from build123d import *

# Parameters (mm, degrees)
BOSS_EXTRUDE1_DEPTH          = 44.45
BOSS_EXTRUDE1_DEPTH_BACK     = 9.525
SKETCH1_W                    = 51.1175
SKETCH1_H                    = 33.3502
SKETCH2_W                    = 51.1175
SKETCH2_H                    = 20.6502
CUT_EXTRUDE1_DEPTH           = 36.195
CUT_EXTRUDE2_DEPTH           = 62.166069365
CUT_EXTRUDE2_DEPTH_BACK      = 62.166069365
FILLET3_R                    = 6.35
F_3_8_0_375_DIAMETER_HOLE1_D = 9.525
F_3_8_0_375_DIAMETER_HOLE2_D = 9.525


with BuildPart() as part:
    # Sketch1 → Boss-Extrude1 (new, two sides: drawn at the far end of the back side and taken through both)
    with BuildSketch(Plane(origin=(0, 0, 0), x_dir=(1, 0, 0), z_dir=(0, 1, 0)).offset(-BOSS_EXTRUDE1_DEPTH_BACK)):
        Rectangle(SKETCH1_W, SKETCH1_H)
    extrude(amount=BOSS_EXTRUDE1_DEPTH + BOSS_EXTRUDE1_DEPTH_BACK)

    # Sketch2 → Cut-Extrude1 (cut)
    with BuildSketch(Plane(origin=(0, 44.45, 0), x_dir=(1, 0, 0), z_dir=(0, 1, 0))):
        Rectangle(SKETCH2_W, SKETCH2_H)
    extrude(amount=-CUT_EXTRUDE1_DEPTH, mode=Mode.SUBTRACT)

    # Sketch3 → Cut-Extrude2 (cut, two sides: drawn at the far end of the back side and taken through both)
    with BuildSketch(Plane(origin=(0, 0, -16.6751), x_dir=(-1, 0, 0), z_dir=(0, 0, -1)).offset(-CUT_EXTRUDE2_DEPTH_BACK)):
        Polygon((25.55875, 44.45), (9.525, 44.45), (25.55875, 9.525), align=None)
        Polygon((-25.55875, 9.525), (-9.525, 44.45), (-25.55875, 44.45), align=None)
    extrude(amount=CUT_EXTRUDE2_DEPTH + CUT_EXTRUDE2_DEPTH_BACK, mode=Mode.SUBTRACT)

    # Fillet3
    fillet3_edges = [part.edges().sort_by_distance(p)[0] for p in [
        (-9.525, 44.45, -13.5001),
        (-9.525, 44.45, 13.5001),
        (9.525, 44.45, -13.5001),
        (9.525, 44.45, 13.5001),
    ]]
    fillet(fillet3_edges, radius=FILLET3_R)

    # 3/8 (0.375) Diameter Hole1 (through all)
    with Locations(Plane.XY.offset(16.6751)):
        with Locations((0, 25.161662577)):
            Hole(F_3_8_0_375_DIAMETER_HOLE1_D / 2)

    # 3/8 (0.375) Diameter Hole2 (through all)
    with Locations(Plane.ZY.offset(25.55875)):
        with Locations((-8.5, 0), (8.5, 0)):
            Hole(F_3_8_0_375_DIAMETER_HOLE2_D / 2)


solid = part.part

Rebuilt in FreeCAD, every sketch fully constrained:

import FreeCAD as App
import Part
import Sketcher

V = App.Vector
Q = App.Units.Quantity


def edges_at(feature, points):
    """Names of the edges that pass closest to the given points."""
    edges = feature.Shape.Edges
    near = lambda p: min(range(len(edges)), key=lambda i: edges[i].distToShape(Part.Vertex(*p))[0])
    return sorted({f"Edge{near(p) + 1}" for p in points})

doc = App.newDocument("Part")
body = doc.addObject("PartDesign::Body", "Body")

# Sketch on XZ plane
sketch1 = body.newObject("Sketcher::SketchObject", "Sketch")
sketch1.AttachmentSupport = (doc.getObject("XZ_Plane"), [""])
sketch1.MapMode = "FlatFace"
sketch1.addGeometry(Part.LineSegment(V(-25.55875, -16.6751, 0), V(-25.55875, 16.6751, 0)), False)
sketch1.addGeometry(Part.LineSegment(V(-25.55875, 16.6751, 0), V(25.55875, 16.6751, 0)), False)
sketch1.addGeometry(Part.LineSegment(V(25.55875, 16.6751, 0), V(25.55875, -16.6751, 0)), False)
sketch1.addGeometry(Part.LineSegment(V(25.55875, -16.6751, 0), V(-25.55875, -16.6751, 0)), False)
sketch1.addConstraint(Sketcher.Constraint("Coincident", 0, 2, 1, 1))
sketch1.addConstraint(Sketcher.Constraint("Coincident", 1, 2, 2, 1))
sketch1.addConstraint(Sketcher.Constraint("Coincident", 2, 2, 3, 1))
sketch1.addConstraint(Sketcher.Constraint("Coincident", 3, 2, 0, 1))
sketch1.addConstraint(Sketcher.Constraint("Vertical", 0))
sketch1.addConstraint(Sketcher.Constraint("Horizontal", 1))
sketch1.addConstraint(Sketcher.Constraint("Vertical", 2))
sketch1.addConstraint(Sketcher.Constraint("Horizontal", 3))
sketch1.addConstraint(Sketcher.Constraint("Symmetric", 0, 2, 2, 2, -1, 1))
sketch1.addConstraint(Sketcher.Constraint("DistanceY", 0, 1, 0, 2, Q("1.313 in")))
sketch1.addConstraint(Sketcher.Constraint("DistanceX", 1, 1, 1, 2, Q("2.0125 in")))
pad1 = body.newObject("PartDesign::Pad", "Pad")
pad1.Profile = sketch1
pad1.Type = "TwoLengths"
pad1.Length = Q("1.75 in")
pad1.Length2 = Q("0.375 in")
pad1.Reversed = True

# Sketch on XZ plane
sketch2 = body.newObject("Sketcher::SketchObject", "Sketch001")
sketch2.AttachmentSupport = (doc.getObject("XZ_Plane"), [""])
sketch2.MapMode = "FlatFace"
sketch2.AttachmentOffset = App.Placement(V(0, 0, -1.75 * 25.4), App.Rotation())
sketch2.addGeometry(Part.LineSegment(V(-25.55875, -10.3251, 0), V(-25.55875, 10.3251, 0)), False)
sketch2.addGeometry(Part.LineSegment(V(-25.55875, 10.3251, 0), V(25.55875, 10.3251, 0)), False)
sketch2.addGeometry(Part.LineSegment(V(25.55875, 10.3251, 0), V(25.55875, -10.3251, 0)), False)
sketch2.addGeometry(Part.LineSegment(V(25.55875, -10.3251, 0), V(-25.55875, -10.3251, 0)), False)
sketch2.addConstraint(Sketcher.Constraint("Coincident", 0, 2, 1, 1))
sketch2.addConstraint(Sketcher.Constraint("Coincident", 1, 2, 2, 1))
sketch2.addConstraint(Sketcher.Constraint("Coincident", 2, 2, 3, 1))
sketch2.addConstraint(Sketcher.Constraint("Coincident", 3, 2, 0, 1))
sketch2.addConstraint(Sketcher.Constraint("Vertical", 0))
sketch2.addConstraint(Sketcher.Constraint("Horizontal", 1))
sketch2.addConstraint(Sketcher.Constraint("Vertical", 2))
sketch2.addConstraint(Sketcher.Constraint("Horizontal", 3))
sketch2.addConstraint(Sketcher.Constraint("Symmetric", 0, 2, 2, 2, -1, 1))
sketch2.addConstraint(Sketcher.Constraint("DistanceY", 0, 1, 0, 2, Q("0.813 in")))
sketch2.addConstraint(Sketcher.Constraint("DistanceX", 1, 1, 1, 2, Q("2.0125 in")))
pocket1 = body.newObject("PartDesign::Pocket", "Pocket")
pocket1.Profile = sketch2
pocket1.Length = Q("1.425 in")
pocket1.Reversed = True

# Sketch on XY plane
sketch3 = body.newObject("Sketcher::SketchObject", "Sketch002")
sketch3.AttachmentSupport = (doc.getObject("XY_Plane"), [""])
sketch3.MapMode = "FlatFace"
sketch3.AttachmentOffset = App.Placement(V(0, 0, -0.6565 * 25.4), App.Rotation())
sketch3.addGeometry(Part.LineSegment(V(-25.55875, 44.45, 0), V(-9.525, 44.45, 0)), False)
sketch3.addGeometry(Part.LineSegment(V(-9.525, 44.45, 0), V(-25.55875, 9.525, 0)), False)
sketch3.addGeometry(Part.LineSegment(V(-25.55875, 9.525, 0), V(-25.55875, 44.45, 0)), False)
sketch3.addGeometry(Part.LineSegment(V(25.55875, 9.525, 0), V(9.525, 44.45, 0)), False)
sketch3.addGeometry(Part.LineSegment(V(9.525, 44.45, 0), V(25.55875, 44.45, 0)), False)
sketch3.addGeometry(Part.LineSegment(V(25.55875, 44.45, 0), V(25.55875, 9.525, 0)), False)
sketch3.addConstraint(Sketcher.Constraint("Coincident", 0, 2, 1, 1))
sketch3.addConstraint(Sketcher.Constraint("Coincident", 1, 2, 2, 1))
sketch3.addConstraint(Sketcher.Constraint("Coincident", 2, 2, 0, 1))
sketch3.addConstraint(Sketcher.Constraint("Coincident", 3, 2, 4, 1))
sketch3.addConstraint(Sketcher.Constraint("Coincident", 4, 2, 5, 1))
sketch3.addConstraint(Sketcher.Constraint("Coincident", 5, 2, 3, 1))
sketch3.addConstraint(Sketcher.Constraint("Horizontal", 0))
sketch3.addConstraint(Sketcher.Constraint("Vertical", 2))
sketch3.addConstraint(Sketcher.Constraint("Horizontal", 4))
sketch3.addConstraint(Sketcher.Constraint("Vertical", 5))
sketch3.addConstraint(Sketcher.Constraint("Symmetric", 0, 2, 3, 2, -2))
sketch3.addConstraint(Sketcher.Constraint("Symmetric", 1, 2, 5, 2, -2))
sketch3.addConstraint(Sketcher.Constraint("DistanceY", 2, 1, 2, 2, Q("1.375 in")))
sketch3.addConstraint(Sketcher.Constraint("DistanceY", -1, 1, 0, 2, Q("1.75 in")))
sketch3.addConstraint(Sketcher.Constraint("DistanceX", 0, 2, 3, 2, Q("0.75 in")))
sketch3.addConstraint(Sketcher.Constraint("DistanceX", 2, 2, 4, 2, Q("2.0125 in")))
pocket2 = body.newObject("PartDesign::Pocket", "Pocket001")
pocket2.Profile = sketch3
pocket2.Type = "ThroughAll"
pocket2.Midplane = True
doc.recompute()

fillet = body.newObject("PartDesign::Fillet", "Fillet")
fillet.Base = (pocket2, edges_at(pocket2, [
    (-9.525, 44.45, -13.5),
    (-9.525, 44.45, 13.5),
    (9.525, 44.45, -13.5),
    (9.525, 44.45, 13.5),
]))
fillet.Radius = Q("0.25 in")

# Sketch on XY plane
sketch4 = body.newObject("Sketcher::SketchObject", "Sketch003")
sketch4.AttachmentSupport = (doc.getObject("XY_Plane"), [""])
sketch4.MapMode = "FlatFace"
sketch4.AttachmentOffset = App.Placement(V(0, 0, 0.6565 * 25.4), App.Rotation())
sketch4.addGeometry(Part.Circle(V(0, 25.161663, 0), V(0, 0, 1), 4.7625), False)
sketch4.addConstraint(Sketcher.Constraint("PointOnObject", 0, 3, -2))
sketch4.addConstraint(Sketcher.Constraint("Diameter", 0, Q("0.375 in")))
sketch4.addConstraint(Sketcher.Constraint("DistanceY", -1, 1, 0, 3, 25.161663))
doc.recompute()
hole = body.newObject("PartDesign::Hole", "Hole")
hole.Profile = sketch4
hole.ThreadType = "None"
hole.Diameter = Q("0.375 in")
hole.DepthType = "ThroughAll"

# Sketch on YZ plane
sketch5 = body.newObject("Sketcher::SketchObject", "Sketch004")
sketch5.AttachmentSupport = (doc.getObject("YZ_Plane"), [""])
sketch5.MapMode = "FlatFace"
sketch5.AttachmentOffset = App.Placement(V(0, 0, -25.55875), App.Rotation())
sketch5.addGeometry(Part.Circle(V(0, -8.5, 0), V(0, 0, 1), 4.7625), False)
sketch5.addGeometry(Part.Circle(V(0, 8.5, 0), V(0, 0, 1), 4.7625), False)
sketch5.addConstraint(Sketcher.Constraint("Equal", 0, 1))
sketch5.addConstraint(Sketcher.Constraint("Symmetric", 0, 3, 1, 3, -1, 1))
sketch5.addConstraint(Sketcher.Constraint("PointOnObject", 0, 3, -2))
sketch5.addConstraint(Sketcher.Constraint("Diameter", 0, Q("0.375 in")))
sketch5.addConstraint(Sketcher.Constraint("DistanceY", 0, 3, -1, 1, 8.5))
doc.recompute()
hole2 = body.newObject("PartDesign::Hole", "Hole001")
hole2.Profile = sketch5
hole2.ThreadType = "None"
hole2.Diameter = Q("0.375 in")
hole2.DepthType = "ThroughAll"
hole2.Reversed = True

doc.recompute()
